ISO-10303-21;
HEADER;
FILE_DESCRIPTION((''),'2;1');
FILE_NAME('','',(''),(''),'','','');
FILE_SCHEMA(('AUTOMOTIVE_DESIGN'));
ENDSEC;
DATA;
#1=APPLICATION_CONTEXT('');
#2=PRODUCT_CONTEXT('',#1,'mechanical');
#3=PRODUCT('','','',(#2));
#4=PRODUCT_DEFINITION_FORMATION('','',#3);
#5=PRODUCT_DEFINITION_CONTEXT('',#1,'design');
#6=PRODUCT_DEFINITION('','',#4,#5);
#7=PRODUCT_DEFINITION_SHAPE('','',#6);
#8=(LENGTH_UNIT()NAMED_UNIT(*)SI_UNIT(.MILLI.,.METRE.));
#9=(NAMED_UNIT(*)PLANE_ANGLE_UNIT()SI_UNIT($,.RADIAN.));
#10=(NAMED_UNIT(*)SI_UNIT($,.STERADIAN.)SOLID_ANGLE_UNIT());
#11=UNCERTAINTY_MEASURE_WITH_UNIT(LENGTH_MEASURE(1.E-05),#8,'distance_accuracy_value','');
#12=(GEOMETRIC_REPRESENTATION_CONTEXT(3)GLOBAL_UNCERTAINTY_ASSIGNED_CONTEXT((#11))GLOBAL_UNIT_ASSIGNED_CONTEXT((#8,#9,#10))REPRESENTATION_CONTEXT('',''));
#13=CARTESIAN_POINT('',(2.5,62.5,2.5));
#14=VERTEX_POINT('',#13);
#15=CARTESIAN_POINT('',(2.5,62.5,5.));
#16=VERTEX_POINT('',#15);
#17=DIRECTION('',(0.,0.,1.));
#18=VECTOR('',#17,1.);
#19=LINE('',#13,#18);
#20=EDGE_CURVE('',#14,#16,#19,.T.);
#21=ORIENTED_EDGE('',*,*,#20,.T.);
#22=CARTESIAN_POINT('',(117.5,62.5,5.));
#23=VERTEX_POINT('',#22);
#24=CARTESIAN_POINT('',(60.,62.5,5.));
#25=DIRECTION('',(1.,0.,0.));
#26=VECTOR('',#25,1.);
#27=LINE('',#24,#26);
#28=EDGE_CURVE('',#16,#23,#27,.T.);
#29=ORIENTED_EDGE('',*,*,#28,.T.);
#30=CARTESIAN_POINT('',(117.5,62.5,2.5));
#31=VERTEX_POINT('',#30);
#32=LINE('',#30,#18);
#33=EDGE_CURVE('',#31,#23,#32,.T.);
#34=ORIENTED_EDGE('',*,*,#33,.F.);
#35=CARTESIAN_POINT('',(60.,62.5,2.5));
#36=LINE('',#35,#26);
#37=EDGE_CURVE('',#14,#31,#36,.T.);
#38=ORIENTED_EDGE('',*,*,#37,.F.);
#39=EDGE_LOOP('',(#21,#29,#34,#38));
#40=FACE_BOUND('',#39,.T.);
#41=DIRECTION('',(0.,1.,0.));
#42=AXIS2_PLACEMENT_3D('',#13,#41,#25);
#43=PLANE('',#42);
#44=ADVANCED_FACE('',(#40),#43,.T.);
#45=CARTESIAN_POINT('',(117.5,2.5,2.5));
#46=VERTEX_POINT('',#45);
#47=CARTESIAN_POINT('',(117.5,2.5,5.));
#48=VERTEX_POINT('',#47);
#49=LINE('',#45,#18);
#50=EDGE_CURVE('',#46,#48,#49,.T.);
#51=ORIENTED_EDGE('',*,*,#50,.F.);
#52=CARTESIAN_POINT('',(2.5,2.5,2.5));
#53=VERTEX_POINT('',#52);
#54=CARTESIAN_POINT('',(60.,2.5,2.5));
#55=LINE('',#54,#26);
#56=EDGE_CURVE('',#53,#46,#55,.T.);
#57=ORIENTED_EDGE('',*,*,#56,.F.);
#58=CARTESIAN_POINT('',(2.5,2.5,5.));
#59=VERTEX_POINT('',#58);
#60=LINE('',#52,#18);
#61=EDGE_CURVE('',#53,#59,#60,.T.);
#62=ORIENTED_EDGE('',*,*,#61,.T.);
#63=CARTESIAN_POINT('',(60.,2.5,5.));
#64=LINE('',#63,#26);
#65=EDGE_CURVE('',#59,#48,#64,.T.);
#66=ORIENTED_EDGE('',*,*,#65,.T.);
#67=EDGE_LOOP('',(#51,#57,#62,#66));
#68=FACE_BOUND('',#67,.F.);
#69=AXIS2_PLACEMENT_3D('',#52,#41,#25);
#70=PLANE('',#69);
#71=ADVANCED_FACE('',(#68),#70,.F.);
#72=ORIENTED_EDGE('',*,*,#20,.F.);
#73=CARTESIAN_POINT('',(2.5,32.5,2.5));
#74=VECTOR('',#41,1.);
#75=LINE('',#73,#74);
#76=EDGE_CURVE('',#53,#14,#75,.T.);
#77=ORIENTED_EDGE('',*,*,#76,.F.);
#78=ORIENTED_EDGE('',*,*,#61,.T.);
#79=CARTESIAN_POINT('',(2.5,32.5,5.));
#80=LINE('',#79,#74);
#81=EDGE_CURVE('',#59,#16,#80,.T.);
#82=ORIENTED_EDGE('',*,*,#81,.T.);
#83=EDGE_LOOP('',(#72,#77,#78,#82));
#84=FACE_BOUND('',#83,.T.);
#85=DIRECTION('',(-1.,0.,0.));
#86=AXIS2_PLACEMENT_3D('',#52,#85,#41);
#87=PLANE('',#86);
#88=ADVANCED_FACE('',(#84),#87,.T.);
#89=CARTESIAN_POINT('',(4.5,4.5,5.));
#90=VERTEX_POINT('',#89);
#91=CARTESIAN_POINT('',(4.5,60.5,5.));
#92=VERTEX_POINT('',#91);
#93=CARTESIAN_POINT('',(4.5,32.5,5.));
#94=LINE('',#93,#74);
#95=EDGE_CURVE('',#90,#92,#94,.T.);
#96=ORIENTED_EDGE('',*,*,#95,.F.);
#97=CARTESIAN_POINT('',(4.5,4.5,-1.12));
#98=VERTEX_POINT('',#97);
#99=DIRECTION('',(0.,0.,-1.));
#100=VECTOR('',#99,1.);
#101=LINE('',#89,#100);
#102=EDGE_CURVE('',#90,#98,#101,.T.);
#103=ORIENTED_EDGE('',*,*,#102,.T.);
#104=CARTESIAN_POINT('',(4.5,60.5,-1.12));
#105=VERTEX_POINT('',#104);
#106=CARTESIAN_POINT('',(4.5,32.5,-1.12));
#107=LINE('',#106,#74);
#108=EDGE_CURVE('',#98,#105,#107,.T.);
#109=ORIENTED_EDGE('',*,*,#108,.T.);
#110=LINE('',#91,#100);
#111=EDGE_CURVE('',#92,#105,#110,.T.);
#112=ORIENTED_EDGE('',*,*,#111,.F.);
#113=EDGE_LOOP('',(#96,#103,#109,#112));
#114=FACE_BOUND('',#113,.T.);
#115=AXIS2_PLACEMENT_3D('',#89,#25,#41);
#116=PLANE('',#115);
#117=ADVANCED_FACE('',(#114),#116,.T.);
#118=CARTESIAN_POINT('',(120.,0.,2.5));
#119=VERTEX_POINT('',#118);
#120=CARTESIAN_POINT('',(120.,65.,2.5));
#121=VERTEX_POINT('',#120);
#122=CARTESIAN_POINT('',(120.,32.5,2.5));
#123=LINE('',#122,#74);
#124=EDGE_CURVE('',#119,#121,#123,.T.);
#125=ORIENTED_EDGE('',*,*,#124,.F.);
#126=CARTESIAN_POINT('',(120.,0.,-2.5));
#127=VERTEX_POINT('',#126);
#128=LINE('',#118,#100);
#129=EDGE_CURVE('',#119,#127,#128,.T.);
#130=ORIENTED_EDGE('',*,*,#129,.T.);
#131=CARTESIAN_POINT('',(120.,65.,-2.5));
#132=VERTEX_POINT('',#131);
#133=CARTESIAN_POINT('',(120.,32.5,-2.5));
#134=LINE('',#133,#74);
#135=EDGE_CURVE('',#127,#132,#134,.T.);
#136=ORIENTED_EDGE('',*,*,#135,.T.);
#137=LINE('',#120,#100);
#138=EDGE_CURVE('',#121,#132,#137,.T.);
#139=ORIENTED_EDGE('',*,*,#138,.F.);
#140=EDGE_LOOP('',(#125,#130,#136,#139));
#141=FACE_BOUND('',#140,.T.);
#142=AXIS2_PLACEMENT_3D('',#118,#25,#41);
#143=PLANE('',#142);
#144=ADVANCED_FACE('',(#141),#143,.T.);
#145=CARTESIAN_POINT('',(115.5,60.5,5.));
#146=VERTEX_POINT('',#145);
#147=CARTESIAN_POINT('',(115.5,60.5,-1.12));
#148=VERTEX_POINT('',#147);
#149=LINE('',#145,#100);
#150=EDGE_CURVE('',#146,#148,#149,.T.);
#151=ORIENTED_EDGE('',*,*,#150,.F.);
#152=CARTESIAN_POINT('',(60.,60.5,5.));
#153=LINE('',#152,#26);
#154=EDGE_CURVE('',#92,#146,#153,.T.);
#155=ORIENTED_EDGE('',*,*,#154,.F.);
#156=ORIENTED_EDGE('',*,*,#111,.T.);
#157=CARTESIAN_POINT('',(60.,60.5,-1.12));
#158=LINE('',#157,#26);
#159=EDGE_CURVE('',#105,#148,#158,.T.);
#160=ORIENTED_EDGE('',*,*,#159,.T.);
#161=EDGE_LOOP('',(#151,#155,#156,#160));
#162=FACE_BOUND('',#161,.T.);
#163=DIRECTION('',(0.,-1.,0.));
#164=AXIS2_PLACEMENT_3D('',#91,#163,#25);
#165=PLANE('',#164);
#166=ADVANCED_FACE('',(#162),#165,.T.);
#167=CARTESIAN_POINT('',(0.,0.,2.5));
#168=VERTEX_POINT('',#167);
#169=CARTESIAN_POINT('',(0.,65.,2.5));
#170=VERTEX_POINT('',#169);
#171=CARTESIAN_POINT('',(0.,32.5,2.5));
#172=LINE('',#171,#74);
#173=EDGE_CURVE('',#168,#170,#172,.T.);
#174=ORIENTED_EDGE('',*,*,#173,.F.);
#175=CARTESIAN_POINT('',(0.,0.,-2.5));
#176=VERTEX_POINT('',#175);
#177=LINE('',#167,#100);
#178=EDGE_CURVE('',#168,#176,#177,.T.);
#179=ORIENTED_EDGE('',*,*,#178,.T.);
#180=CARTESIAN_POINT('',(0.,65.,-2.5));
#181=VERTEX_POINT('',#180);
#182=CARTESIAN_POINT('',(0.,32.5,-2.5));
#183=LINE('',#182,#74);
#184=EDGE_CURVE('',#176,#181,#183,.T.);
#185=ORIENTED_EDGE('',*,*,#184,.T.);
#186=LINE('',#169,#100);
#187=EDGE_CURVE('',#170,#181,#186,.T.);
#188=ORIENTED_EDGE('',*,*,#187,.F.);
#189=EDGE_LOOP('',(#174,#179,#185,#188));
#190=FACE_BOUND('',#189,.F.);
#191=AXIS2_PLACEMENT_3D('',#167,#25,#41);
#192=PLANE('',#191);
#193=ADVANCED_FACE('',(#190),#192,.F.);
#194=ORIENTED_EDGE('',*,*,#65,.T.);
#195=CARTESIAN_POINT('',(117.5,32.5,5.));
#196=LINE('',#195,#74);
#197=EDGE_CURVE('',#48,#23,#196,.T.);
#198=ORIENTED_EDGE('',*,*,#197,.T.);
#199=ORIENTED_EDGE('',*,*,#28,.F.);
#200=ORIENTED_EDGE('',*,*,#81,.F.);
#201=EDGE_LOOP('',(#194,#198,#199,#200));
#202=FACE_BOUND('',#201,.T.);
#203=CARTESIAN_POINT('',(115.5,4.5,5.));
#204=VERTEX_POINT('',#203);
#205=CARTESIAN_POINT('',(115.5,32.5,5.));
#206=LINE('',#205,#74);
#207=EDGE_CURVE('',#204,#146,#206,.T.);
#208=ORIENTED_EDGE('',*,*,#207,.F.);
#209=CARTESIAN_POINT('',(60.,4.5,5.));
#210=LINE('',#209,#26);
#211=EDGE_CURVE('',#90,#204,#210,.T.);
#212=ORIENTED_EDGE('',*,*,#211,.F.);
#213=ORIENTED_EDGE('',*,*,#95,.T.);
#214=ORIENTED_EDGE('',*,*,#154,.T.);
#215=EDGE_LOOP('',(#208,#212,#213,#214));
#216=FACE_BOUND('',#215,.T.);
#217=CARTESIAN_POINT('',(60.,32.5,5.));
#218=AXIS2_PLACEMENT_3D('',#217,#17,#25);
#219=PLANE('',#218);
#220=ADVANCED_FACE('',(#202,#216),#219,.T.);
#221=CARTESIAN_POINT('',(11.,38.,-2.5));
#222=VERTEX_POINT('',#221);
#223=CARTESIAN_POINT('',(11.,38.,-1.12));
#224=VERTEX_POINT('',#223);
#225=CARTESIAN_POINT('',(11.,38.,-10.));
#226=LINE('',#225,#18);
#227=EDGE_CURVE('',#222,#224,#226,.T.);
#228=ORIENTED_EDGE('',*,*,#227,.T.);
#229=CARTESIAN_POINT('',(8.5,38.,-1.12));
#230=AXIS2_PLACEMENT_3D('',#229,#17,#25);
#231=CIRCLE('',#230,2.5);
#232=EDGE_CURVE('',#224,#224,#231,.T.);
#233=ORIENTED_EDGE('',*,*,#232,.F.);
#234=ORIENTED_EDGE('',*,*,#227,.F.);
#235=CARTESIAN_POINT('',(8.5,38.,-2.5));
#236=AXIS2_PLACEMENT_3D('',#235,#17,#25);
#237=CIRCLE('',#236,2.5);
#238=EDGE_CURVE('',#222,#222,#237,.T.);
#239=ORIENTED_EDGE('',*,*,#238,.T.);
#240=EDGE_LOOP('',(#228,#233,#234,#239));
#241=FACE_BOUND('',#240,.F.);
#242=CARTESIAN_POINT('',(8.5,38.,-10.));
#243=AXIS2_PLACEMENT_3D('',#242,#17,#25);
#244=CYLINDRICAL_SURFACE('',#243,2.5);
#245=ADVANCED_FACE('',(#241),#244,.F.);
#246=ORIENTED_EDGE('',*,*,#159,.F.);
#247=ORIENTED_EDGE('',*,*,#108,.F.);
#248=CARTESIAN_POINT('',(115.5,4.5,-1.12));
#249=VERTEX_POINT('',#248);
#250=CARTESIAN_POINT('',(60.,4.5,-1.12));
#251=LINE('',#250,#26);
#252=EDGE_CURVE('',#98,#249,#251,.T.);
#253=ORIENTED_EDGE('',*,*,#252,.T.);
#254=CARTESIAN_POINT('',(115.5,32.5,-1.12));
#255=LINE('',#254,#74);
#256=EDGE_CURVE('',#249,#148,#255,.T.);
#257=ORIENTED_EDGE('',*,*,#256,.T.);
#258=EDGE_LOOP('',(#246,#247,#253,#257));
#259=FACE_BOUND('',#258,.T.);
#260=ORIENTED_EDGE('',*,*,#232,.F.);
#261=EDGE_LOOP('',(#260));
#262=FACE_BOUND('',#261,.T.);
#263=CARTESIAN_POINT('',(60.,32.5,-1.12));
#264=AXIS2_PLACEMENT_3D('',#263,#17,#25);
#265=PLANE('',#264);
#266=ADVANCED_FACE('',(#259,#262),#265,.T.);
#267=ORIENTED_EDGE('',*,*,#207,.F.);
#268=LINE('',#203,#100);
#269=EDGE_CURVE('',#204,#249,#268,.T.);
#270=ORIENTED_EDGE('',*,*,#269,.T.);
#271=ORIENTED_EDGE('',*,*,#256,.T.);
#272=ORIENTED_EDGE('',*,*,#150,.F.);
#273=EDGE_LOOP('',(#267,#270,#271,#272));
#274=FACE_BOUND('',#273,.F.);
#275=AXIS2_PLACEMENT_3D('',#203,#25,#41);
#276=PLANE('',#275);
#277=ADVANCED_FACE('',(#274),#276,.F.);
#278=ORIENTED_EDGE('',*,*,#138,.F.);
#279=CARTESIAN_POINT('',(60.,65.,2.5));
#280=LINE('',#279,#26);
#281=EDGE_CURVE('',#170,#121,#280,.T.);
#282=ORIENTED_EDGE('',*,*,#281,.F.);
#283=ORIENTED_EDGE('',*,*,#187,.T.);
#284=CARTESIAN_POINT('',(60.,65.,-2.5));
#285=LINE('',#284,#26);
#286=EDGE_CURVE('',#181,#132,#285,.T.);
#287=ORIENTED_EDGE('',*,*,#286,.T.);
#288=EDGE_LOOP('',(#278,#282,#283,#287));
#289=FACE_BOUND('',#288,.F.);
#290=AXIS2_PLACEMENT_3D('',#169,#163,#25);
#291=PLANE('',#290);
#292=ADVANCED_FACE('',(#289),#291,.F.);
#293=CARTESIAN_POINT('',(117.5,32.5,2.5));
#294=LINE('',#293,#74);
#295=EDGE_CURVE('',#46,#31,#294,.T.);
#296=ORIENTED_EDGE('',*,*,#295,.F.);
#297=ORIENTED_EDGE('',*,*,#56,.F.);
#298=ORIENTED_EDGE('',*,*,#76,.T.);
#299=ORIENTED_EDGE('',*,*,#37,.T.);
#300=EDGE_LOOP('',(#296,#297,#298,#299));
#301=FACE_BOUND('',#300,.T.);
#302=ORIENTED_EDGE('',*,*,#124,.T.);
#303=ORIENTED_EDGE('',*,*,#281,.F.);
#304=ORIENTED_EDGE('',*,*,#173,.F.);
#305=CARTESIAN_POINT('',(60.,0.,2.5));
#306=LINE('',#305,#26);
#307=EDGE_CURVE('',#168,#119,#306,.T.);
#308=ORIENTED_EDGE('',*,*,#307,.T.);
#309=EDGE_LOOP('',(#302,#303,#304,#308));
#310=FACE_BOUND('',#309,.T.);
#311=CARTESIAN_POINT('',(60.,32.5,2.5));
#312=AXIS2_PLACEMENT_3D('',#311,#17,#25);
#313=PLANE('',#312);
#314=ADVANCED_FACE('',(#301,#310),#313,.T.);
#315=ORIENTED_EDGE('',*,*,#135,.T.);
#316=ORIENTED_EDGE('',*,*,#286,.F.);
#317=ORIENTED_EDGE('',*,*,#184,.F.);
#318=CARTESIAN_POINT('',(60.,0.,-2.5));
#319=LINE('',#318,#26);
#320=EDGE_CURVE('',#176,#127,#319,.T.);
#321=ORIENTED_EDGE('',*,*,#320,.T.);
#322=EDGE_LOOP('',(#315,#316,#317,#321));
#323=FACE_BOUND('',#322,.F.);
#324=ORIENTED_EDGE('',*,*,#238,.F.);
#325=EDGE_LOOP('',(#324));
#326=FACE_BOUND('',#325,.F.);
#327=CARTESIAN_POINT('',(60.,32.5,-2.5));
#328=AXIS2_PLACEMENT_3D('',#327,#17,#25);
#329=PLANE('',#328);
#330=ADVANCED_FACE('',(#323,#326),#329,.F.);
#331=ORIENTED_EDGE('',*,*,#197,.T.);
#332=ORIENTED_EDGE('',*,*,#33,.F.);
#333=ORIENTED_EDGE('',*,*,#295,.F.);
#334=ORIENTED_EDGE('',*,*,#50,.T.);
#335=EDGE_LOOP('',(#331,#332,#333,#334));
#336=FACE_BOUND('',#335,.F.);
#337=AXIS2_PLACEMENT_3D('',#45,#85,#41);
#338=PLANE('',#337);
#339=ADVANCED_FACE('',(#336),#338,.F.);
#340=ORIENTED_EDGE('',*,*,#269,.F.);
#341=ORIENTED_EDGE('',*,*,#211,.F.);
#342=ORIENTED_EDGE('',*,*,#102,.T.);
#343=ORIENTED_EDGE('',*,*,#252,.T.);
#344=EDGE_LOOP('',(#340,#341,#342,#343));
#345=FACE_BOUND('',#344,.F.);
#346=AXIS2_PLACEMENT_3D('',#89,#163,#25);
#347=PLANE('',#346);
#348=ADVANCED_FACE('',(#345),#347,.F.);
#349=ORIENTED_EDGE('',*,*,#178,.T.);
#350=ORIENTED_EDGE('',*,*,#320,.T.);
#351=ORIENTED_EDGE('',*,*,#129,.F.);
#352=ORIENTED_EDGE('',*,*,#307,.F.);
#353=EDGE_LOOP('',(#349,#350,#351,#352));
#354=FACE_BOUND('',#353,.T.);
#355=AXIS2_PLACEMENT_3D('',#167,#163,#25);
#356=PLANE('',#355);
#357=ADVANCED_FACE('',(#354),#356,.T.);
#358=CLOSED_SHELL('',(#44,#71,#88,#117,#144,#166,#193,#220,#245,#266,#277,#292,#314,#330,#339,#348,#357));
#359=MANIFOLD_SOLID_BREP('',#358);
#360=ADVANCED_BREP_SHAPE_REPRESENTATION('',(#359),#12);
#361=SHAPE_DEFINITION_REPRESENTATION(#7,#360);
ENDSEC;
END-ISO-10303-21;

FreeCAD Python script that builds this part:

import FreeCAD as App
import Part
import Sketcher


def add_polygon(sketch, points):
    """Adds a closed chain of lines whose ends are joined by coincident constraints."""
    first, n = sketch.GeometryCount, len(points)
    for a, b in zip(points, points[1:] + points[:1]):
        sketch.addGeometry(Part.LineSegment(App.Vector(*a, 0), App.Vector(*b, 0)), False)
    for i in range(n):
        sketch.addConstraint(Sketcher.Constraint("Coincident", first + i, 2, first + (i + 1) % n, 1))

doc = App.newDocument("Part")
body = doc.addObject("PartDesign::Body", "Body")

sketch1 = body.newObject("Sketcher::SketchObject", "Sketch")
sketch1.AttachmentSupport = (doc.getObject("XY_Plane"), [""])
sketch1.MapMode = "FlatFace"
sketch1.AttachmentOffset = App.Placement(App.Vector(0, 0, 2.5), App.Rotation())
add_polygon(sketch1, [(0, 65), (0, 0), (120, 0), (120, 65)])
sketch1.addConstraint([
    Sketcher.Constraint("Vertical", 0),
    Sketcher.Constraint("Horizontal", 1),
    Sketcher.Constraint("Vertical", 2),
    Sketcher.Constraint("Horizontal", 3),
    Sketcher.Constraint("Coincident", 0, 2, -1, 1),
    Sketcher.Constraint("DistanceX", 1, 1, 1, 2, 120.0),
    Sketcher.Constraint("DistanceY", 0, 2, 0, 1, 65.0),
])
pad1 = body.newObject("PartDesign::Pad", "Pad")
pad1.Profile = sketch1
pad1.Length = 5
pad1.Reversed = True

sketch2 = body.newObject("Sketcher::SketchObject", "Sketch001")
sketch2.AttachmentSupport = (doc.getObject("XY_Plane"), [""])
sketch2.MapMode = "FlatFace"
sketch2.AttachmentOffset = App.Placement(App.Vector(0, 0, 2.5), App.Rotation())
add_polygon(sketch2, [(2.5, 62.5), (2.5, 2.5), (117.5, 2.5), (117.5, 62.5)])
sketch2.addConstraint([
    Sketcher.Constraint("Vertical", 0),
    Sketcher.Constraint("Horizontal", 1),
    Sketcher.Constraint("Vertical", 2),
    Sketcher.Constraint("Horizontal", 3),
    Sketcher.Constraint("DistanceX", 1, 1, 1, 2, 115.0),
    Sketcher.Constraint("DistanceY", 0, 2, 0, 1, 60.0),
    Sketcher.Constraint("DistanceX", -1, 1, 0, 2, 2.5),
    Sketcher.Constraint("DistanceY", -1, 1, 0, 2, 2.5),
])
pad2 = body.newObject("PartDesign::Pad", "Pad001")
pad2.Profile = sketch2
pad2.Length = 2.5

sketch3 = body.newObject("Sketcher::SketchObject", "Sketch002")
sketch3.AttachmentSupport = (doc.getObject("XY_Plane"), [""])
sketch3.MapMode = "FlatFace"
sketch3.AttachmentOffset = App.Placement(App.Vector(0, 0, -2.5), App.Rotation())
sketch3.addGeometry(Part.Circle(App.Vector(8.5, 38, 0), App.Vector(0, 0, 1), 2.5), False)
sketch3.addConstraint([
    Sketcher.Constraint("Diameter", 0, 5.0),
    Sketcher.Constraint("DistanceY", -1, 1, 0, 3, 38.0),
    Sketcher.Constraint("DistanceX", -1, 1, 0, 3, 8.5),
])
doc.recompute()
hole = body.newObject("PartDesign::Hole", "Hole")
hole.Profile = sketch3
hole.ThreadType = "None"
hole.Diameter = 5
hole.DepthType = "Dimension"
hole.Depth = 7.5
hole.DrillPoint = "Flat"
hole.Reversed = True

sketch4 = body.newObject("Sketcher::SketchObject", "Sketch003")
sketch4.AttachmentSupport = (doc.getObject("XY_Plane"), [""])
sketch4.MapMode = "FlatFace"
sketch4.AttachmentOffset = App.Placement(App.Vector(0, 0, 5), App.Rotation())
add_polygon(sketch4, [(4.5, 60.5), (4.5, 4.5), (115.5, 4.5), (115.5, 60.5)])
sketch4.addConstraint([
    Sketcher.Constraint("Vertical", 0),
    Sketcher.Constraint("Horizontal", 1),
    Sketcher.Constraint("Vertical", 2),
    Sketcher.Constraint("Horizontal", 3),
    Sketcher.Constraint("DistanceX", 1, 1, 1, 2, 111.0),
    Sketcher.Constraint("DistanceY", 0, 2, 0, 1, 56.0),
    Sketcher.Constraint("DistanceX", -1, 1, 0, 2, 4.5),
    Sketcher.Constraint("DistanceY", -1, 1, 0, 2, 4.5),
])
pocket1 = body.newObject("PartDesign::Pocket", "Pocket")
pocket1.Profile = sketch4
pocket1.Length = 6.12

doc.recompute()
